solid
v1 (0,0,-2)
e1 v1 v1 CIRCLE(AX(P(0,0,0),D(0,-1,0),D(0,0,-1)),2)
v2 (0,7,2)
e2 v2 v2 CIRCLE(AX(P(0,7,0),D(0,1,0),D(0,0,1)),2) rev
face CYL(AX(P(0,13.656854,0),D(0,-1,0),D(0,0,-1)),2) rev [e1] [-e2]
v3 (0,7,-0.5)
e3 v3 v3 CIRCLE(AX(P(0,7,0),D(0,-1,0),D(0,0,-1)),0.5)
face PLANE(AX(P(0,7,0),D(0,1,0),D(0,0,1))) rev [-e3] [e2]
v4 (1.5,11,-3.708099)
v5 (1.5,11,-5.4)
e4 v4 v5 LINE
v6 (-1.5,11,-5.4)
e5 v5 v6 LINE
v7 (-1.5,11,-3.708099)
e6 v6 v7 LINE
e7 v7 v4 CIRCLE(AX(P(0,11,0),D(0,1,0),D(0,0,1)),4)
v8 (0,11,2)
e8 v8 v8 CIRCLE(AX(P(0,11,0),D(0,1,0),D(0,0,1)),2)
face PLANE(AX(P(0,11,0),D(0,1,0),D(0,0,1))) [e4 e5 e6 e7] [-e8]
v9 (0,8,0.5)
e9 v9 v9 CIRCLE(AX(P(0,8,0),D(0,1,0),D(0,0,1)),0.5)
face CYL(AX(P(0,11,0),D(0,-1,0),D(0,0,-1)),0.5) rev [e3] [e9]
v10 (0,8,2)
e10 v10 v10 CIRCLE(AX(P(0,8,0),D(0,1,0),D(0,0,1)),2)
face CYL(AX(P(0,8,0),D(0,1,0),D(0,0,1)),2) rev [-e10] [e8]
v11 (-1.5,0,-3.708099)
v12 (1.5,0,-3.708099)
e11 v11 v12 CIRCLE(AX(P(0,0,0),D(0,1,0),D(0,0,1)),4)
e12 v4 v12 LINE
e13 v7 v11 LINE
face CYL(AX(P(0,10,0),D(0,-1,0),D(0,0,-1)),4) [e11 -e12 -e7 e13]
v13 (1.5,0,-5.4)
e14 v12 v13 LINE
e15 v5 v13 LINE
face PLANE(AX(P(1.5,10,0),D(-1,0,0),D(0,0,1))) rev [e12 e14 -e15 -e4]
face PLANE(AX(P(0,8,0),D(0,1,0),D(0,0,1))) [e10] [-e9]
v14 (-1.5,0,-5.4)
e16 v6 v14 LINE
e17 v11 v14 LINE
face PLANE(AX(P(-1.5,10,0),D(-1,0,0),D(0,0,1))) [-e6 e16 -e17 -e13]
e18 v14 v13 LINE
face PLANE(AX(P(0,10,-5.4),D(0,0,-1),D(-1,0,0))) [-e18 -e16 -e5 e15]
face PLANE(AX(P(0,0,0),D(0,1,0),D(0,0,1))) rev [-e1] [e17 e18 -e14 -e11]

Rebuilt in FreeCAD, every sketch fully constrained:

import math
import FreeCAD as App
import Part
import Sketcher

V = App.Vector
Q = App.Units.Quantity

doc = App.newDocument("Part")
body = doc.addObject("PartDesign::Body", "Body")

# Sketch on XZ plane
sketch1 = doc.addObject("Sketcher::SketchObject", "Sketch")
body.addObject(sketch1)
sketch1.AttachmentSupport = (doc.XZ_Plane, [""])
sketch1.MapMode = "FlatFace"
sketch1.addGeometry(Part.ArcOfCircle(Part.Circle(V(0, 0, 0), V(0, 0, 1), 4), math.radians(0), math.radians(248)), False)
sketch1.addGeometry(Part.ArcOfCircle(Part.Circle(V(0, 0, 0), V(0, 0, 1), 4), math.radians(-68), math.radians(0)), False)
sketch1.addGeometry(Part.LineSegment(V(1.5, -3.7, 0), V(1.5, -5.4, 0)), False)
sketch1.addGeometry(Part.LineSegment(V(1.5, -5.4, 0), V(-1.5, -5.4, 0)), False)
sketch1.addGeometry(Part.LineSegment(V(-1.5, -5.4, 0), V(-1.5, -3.7, 0)), False)
sketch1.addConstraint(Sketcher.Constraint("Tangent", 0, 1, 1, 2))
sketch1.addConstraint(Sketcher.Constraint("Coincident", 1, 1, 2, 1))
sketch1.addConstraint(Sketcher.Constraint("Coincident", 2, 2, 3, 1))
sketch1.addConstraint(Sketcher.Constraint("Coincident", 3, 2, 4, 1))
sketch1.addConstraint(Sketcher.Constraint("Coincident", 4, 2, 0, 2))
sketch1.addConstraint(Sketcher.Constraint("Vertical", 2))
sketch1.addConstraint(Sketcher.Constraint("Horizontal", 3))
sketch1.addConstraint(Sketcher.Constraint("Vertical", 4))
sketch1.addConstraint(Sketcher.Constraint("Coincident", 0, 3, -1, 1))
sketch1.addConstraint(Sketcher.Constraint("Equal", 0, 1))
sketch1.addConstraint(Sketcher.Constraint("PointOnObject", 0, 1, -1))
sketch1.addConstraint(Sketcher.Constraint("Horizontal", 1, 1, 4, 2))
sketch1.addConstraint(Sketcher.Constraint("Radius", 0, Q("4 mm")))
sketch1.addConstraint(Sketcher.Constraint("DistanceX", 3, 2, 3, 1, Q("3 mm")))
sketch1.addConstraint(Sketcher.Constraint("DistanceY", 2, 2, -1, 1, Q("5.4 mm")))
pad1 = doc.addObject("PartDesign::Pad", "Pad")
body.addObject(pad1)
pad1.Profile = sketch1
pad1.Length = 10
pad1.Reversed = True

# Sketch on XZ plane
sketch2 = doc.addObject("Sketcher::SketchObject", "Sketch001")
body.addObject(sketch2)
sketch2.AttachmentSupport = (doc.XZ_Plane, [""])
sketch2.MapMode = "FlatFace"
sketch2.AttachmentOffset = App.Placement(V(0, 0, -10), App.Rotation())
sketch2.addGeometry(Part.ArcOfCircle(Part.Circle(V(0, 0, 0), V(0, 0, 1), 4), math.radians(-68), math.radians(0)), False)
sketch2.addGeometry(Part.ArcOfCircle(Part.Circle(V(0, 0, 0), V(0, 0, 1), 4), math.radians(-112), math.radians(-68)), False)
sketch2.addGeometry(Part.ArcOfCircle(Part.Circle(V(0, 0, 0), V(0, 0, 1), 4), math.radians(0), math.radians(248)), False)
sketch2.addConstraint(Sketcher.Constraint("Tangent", 0, 1, 1, 2))
sketch2.addConstraint(Sketcher.Constraint("Tangent", 1, 1, 2, 2))
sketch2.addConstraint(Sketcher.Constraint("Tangent", 2, 1, 0, 2))
sketch2.addConstraint(Sketcher.Constraint("Coincident", 0, 3, -1, 1))
sketch2.addConstraint(Sketcher.Constraint("PointOnObject", 2, 1, -1))
sketch2.addConstraint(Sketcher.Constraint("Horizontal", 0, 1, 1, 1))
sketch2.addConstraint(Sketcher.Constraint("Radius", 0, Q("4 mm")))
sketch2.addConstraint(Sketcher.Constraint("DistanceX", 1, 1, 0, 1, Q("3 mm")))
pad2 = doc.addObject("PartDesign::Pad", "Pad001")
body.addObject(pad2)
pad2.Profile = sketch2
pad2.Length = 1
pad2.Reversed = True

# Sketch on XZ plane
sketch3 = doc.addObject("Sketcher::SketchObject", "Sketch002")
body.addObject(sketch3)
sketch3.AttachmentSupport = (doc.XZ_Plane, [""])
sketch3.MapMode = "FlatFace"
sketch3.AttachmentOffset = App.Placement(V(0, 0, -11), App.Rotation())
sketch3.addGeometry(Part.Circle(V(0, 0, 0), V(0, 0, 1), 2), False)
sketch3.addConstraint(Sketcher.Constraint("Coincident", 0, 3, -1, 1))
sketch3.addConstraint(Sketcher.Constraint("Diameter", 0, Q("4 mm")))
pocket1 = doc.addObject("PartDesign::Pocket", "Pocket")
body.addObject(pocket1)
pocket1.Profile = sketch3
pocket1.Length = 3
pocket1.Reversed = True

# Sketch on XZ plane
sketch4 = doc.addObject("Sketcher::SketchObject", "Sketch003")
body.addObject(sketch4)
sketch4.AttachmentSupport = (doc.XZ_Plane, [""])
sketch4.MapMode = "FlatFace"
sketch4.AttachmentOffset = App.Placement(V(0, 0, -10), App.Rotation())
sketch4.addGeometry(Part.ArcOfCircle(Part.Circle(V(0, 0, 0), V(0, 0, 1), 4), math.radians(-112), math.radians(-68)), False)
sketch4.addGeometry(Part.LineSegment(V(1.5, -3.7, 0), V(1.5, -5.4, 0)), False)
sketch4.addGeometry(Part.LineSegment(V(1.5, -5.4, 0), V(-1.5, -5.4, 0)), False)
sketch4.addGeometry(Part.LineSegment(V(-1.5, -5.4, 0), V(-1.5, -3.7, 0)), False)
sketch4.addConstraint(Sketcher.Constraint("Coincident", 0, 2, 1, 1))
sketch4.addConstraint(Sketcher.Constraint("Coincident", 1, 2, 2, 1))
sketch4.addConstraint(Sketcher.Constraint("Coincident", 2, 2, 3, 1))
sketch4.addConstraint(Sketcher.Constraint("Coincident", 3, 2, 0, 1))
sketch4.addConstraint(Sketcher.Constraint("Vertical", 1))
sketch4.addConstraint(Sketcher.Constraint("Horizontal", 2))
sketch4.addConstraint(Sketcher.Constraint("Vertical", 3))
sketch4.addConstraint(Sketcher.Constraint("Coincident", 0, 3, -1, 1))
sketch4.addConstraint(Sketcher.Constraint("Horizontal", 0, 2, 3, 2))
sketch4.addConstraint(Sketcher.Constraint("Radius", 0, Q("4 mm")))
sketch4.addConstraint(Sketcher.Constraint("DistanceX", 2, 2, 2, 1, Q("3 mm")))
sketch4.addConstraint(Sketcher.Constraint("DistanceY", 1, 2, -1, 1, Q("5.4 mm")))
pad3 = doc.addObject("PartDesign::Pad", "Pad002")
body.addObject(pad3)
pad3.Profile = sketch4
pad3.Length = 1
pad3.Reversed = True

# Sketch on XZ plane
sketch5 = doc.addObject("Sketcher::SketchObject", "Sketch004")
body.addObject(sketch5)
sketch5.AttachmentSupport = (doc.XZ_Plane, [""])
sketch5.MapMode = "FlatFace"
sketch5.AttachmentOffset = App.Placement(V(0, 0, -7), App.Rotation())
sketch5.addGeometry(Part.Circle(V(0, 0, 0), V(0, 0, 1), 2), False)
sketch5.addConstraint(Sketcher.Constraint("Coincident", 0, 3, -1, 1))
sketch5.addConstraint(Sketcher.Constraint("Diameter", 0, Q("4 mm")))
pocket2 = doc.addObject("PartDesign::Pocket", "Pocket001")
body.addObject(pocket2)
pocket2.Profile = sketch5
pocket2.Length = 7
pocket2.Reversed = True

# Sketch on XZ plane
sketch6 = doc.addObject("Sketcher::SketchObject", "Sketch005")
body.addObject(sketch6)
sketch6.AttachmentSupport = (doc.XZ_Plane, [""])
sketch6.MapMode = "FlatFace"
sketch6.AttachmentOffset = App.Placement(V(0, 0, -7), App.Rotation())
sketch6.addGeometry(Part.Circle(V(0, 0, 0), V(0, 0, 1), 0.5), False)
sketch6.addConstraint(Sketcher.Constraint("Coincident", 0, 3, -1, 1))
sketch6.addConstraint(Sketcher.Constraint("Diameter", 0, Q("1 mm")))
pocket3 = doc.addObject("PartDesign::Pocket", "Pocket002")
body.addObject(pocket3)
pocket3.Profile = sketch6
pocket3.Type = "ThroughAll"

doc.recompute()
